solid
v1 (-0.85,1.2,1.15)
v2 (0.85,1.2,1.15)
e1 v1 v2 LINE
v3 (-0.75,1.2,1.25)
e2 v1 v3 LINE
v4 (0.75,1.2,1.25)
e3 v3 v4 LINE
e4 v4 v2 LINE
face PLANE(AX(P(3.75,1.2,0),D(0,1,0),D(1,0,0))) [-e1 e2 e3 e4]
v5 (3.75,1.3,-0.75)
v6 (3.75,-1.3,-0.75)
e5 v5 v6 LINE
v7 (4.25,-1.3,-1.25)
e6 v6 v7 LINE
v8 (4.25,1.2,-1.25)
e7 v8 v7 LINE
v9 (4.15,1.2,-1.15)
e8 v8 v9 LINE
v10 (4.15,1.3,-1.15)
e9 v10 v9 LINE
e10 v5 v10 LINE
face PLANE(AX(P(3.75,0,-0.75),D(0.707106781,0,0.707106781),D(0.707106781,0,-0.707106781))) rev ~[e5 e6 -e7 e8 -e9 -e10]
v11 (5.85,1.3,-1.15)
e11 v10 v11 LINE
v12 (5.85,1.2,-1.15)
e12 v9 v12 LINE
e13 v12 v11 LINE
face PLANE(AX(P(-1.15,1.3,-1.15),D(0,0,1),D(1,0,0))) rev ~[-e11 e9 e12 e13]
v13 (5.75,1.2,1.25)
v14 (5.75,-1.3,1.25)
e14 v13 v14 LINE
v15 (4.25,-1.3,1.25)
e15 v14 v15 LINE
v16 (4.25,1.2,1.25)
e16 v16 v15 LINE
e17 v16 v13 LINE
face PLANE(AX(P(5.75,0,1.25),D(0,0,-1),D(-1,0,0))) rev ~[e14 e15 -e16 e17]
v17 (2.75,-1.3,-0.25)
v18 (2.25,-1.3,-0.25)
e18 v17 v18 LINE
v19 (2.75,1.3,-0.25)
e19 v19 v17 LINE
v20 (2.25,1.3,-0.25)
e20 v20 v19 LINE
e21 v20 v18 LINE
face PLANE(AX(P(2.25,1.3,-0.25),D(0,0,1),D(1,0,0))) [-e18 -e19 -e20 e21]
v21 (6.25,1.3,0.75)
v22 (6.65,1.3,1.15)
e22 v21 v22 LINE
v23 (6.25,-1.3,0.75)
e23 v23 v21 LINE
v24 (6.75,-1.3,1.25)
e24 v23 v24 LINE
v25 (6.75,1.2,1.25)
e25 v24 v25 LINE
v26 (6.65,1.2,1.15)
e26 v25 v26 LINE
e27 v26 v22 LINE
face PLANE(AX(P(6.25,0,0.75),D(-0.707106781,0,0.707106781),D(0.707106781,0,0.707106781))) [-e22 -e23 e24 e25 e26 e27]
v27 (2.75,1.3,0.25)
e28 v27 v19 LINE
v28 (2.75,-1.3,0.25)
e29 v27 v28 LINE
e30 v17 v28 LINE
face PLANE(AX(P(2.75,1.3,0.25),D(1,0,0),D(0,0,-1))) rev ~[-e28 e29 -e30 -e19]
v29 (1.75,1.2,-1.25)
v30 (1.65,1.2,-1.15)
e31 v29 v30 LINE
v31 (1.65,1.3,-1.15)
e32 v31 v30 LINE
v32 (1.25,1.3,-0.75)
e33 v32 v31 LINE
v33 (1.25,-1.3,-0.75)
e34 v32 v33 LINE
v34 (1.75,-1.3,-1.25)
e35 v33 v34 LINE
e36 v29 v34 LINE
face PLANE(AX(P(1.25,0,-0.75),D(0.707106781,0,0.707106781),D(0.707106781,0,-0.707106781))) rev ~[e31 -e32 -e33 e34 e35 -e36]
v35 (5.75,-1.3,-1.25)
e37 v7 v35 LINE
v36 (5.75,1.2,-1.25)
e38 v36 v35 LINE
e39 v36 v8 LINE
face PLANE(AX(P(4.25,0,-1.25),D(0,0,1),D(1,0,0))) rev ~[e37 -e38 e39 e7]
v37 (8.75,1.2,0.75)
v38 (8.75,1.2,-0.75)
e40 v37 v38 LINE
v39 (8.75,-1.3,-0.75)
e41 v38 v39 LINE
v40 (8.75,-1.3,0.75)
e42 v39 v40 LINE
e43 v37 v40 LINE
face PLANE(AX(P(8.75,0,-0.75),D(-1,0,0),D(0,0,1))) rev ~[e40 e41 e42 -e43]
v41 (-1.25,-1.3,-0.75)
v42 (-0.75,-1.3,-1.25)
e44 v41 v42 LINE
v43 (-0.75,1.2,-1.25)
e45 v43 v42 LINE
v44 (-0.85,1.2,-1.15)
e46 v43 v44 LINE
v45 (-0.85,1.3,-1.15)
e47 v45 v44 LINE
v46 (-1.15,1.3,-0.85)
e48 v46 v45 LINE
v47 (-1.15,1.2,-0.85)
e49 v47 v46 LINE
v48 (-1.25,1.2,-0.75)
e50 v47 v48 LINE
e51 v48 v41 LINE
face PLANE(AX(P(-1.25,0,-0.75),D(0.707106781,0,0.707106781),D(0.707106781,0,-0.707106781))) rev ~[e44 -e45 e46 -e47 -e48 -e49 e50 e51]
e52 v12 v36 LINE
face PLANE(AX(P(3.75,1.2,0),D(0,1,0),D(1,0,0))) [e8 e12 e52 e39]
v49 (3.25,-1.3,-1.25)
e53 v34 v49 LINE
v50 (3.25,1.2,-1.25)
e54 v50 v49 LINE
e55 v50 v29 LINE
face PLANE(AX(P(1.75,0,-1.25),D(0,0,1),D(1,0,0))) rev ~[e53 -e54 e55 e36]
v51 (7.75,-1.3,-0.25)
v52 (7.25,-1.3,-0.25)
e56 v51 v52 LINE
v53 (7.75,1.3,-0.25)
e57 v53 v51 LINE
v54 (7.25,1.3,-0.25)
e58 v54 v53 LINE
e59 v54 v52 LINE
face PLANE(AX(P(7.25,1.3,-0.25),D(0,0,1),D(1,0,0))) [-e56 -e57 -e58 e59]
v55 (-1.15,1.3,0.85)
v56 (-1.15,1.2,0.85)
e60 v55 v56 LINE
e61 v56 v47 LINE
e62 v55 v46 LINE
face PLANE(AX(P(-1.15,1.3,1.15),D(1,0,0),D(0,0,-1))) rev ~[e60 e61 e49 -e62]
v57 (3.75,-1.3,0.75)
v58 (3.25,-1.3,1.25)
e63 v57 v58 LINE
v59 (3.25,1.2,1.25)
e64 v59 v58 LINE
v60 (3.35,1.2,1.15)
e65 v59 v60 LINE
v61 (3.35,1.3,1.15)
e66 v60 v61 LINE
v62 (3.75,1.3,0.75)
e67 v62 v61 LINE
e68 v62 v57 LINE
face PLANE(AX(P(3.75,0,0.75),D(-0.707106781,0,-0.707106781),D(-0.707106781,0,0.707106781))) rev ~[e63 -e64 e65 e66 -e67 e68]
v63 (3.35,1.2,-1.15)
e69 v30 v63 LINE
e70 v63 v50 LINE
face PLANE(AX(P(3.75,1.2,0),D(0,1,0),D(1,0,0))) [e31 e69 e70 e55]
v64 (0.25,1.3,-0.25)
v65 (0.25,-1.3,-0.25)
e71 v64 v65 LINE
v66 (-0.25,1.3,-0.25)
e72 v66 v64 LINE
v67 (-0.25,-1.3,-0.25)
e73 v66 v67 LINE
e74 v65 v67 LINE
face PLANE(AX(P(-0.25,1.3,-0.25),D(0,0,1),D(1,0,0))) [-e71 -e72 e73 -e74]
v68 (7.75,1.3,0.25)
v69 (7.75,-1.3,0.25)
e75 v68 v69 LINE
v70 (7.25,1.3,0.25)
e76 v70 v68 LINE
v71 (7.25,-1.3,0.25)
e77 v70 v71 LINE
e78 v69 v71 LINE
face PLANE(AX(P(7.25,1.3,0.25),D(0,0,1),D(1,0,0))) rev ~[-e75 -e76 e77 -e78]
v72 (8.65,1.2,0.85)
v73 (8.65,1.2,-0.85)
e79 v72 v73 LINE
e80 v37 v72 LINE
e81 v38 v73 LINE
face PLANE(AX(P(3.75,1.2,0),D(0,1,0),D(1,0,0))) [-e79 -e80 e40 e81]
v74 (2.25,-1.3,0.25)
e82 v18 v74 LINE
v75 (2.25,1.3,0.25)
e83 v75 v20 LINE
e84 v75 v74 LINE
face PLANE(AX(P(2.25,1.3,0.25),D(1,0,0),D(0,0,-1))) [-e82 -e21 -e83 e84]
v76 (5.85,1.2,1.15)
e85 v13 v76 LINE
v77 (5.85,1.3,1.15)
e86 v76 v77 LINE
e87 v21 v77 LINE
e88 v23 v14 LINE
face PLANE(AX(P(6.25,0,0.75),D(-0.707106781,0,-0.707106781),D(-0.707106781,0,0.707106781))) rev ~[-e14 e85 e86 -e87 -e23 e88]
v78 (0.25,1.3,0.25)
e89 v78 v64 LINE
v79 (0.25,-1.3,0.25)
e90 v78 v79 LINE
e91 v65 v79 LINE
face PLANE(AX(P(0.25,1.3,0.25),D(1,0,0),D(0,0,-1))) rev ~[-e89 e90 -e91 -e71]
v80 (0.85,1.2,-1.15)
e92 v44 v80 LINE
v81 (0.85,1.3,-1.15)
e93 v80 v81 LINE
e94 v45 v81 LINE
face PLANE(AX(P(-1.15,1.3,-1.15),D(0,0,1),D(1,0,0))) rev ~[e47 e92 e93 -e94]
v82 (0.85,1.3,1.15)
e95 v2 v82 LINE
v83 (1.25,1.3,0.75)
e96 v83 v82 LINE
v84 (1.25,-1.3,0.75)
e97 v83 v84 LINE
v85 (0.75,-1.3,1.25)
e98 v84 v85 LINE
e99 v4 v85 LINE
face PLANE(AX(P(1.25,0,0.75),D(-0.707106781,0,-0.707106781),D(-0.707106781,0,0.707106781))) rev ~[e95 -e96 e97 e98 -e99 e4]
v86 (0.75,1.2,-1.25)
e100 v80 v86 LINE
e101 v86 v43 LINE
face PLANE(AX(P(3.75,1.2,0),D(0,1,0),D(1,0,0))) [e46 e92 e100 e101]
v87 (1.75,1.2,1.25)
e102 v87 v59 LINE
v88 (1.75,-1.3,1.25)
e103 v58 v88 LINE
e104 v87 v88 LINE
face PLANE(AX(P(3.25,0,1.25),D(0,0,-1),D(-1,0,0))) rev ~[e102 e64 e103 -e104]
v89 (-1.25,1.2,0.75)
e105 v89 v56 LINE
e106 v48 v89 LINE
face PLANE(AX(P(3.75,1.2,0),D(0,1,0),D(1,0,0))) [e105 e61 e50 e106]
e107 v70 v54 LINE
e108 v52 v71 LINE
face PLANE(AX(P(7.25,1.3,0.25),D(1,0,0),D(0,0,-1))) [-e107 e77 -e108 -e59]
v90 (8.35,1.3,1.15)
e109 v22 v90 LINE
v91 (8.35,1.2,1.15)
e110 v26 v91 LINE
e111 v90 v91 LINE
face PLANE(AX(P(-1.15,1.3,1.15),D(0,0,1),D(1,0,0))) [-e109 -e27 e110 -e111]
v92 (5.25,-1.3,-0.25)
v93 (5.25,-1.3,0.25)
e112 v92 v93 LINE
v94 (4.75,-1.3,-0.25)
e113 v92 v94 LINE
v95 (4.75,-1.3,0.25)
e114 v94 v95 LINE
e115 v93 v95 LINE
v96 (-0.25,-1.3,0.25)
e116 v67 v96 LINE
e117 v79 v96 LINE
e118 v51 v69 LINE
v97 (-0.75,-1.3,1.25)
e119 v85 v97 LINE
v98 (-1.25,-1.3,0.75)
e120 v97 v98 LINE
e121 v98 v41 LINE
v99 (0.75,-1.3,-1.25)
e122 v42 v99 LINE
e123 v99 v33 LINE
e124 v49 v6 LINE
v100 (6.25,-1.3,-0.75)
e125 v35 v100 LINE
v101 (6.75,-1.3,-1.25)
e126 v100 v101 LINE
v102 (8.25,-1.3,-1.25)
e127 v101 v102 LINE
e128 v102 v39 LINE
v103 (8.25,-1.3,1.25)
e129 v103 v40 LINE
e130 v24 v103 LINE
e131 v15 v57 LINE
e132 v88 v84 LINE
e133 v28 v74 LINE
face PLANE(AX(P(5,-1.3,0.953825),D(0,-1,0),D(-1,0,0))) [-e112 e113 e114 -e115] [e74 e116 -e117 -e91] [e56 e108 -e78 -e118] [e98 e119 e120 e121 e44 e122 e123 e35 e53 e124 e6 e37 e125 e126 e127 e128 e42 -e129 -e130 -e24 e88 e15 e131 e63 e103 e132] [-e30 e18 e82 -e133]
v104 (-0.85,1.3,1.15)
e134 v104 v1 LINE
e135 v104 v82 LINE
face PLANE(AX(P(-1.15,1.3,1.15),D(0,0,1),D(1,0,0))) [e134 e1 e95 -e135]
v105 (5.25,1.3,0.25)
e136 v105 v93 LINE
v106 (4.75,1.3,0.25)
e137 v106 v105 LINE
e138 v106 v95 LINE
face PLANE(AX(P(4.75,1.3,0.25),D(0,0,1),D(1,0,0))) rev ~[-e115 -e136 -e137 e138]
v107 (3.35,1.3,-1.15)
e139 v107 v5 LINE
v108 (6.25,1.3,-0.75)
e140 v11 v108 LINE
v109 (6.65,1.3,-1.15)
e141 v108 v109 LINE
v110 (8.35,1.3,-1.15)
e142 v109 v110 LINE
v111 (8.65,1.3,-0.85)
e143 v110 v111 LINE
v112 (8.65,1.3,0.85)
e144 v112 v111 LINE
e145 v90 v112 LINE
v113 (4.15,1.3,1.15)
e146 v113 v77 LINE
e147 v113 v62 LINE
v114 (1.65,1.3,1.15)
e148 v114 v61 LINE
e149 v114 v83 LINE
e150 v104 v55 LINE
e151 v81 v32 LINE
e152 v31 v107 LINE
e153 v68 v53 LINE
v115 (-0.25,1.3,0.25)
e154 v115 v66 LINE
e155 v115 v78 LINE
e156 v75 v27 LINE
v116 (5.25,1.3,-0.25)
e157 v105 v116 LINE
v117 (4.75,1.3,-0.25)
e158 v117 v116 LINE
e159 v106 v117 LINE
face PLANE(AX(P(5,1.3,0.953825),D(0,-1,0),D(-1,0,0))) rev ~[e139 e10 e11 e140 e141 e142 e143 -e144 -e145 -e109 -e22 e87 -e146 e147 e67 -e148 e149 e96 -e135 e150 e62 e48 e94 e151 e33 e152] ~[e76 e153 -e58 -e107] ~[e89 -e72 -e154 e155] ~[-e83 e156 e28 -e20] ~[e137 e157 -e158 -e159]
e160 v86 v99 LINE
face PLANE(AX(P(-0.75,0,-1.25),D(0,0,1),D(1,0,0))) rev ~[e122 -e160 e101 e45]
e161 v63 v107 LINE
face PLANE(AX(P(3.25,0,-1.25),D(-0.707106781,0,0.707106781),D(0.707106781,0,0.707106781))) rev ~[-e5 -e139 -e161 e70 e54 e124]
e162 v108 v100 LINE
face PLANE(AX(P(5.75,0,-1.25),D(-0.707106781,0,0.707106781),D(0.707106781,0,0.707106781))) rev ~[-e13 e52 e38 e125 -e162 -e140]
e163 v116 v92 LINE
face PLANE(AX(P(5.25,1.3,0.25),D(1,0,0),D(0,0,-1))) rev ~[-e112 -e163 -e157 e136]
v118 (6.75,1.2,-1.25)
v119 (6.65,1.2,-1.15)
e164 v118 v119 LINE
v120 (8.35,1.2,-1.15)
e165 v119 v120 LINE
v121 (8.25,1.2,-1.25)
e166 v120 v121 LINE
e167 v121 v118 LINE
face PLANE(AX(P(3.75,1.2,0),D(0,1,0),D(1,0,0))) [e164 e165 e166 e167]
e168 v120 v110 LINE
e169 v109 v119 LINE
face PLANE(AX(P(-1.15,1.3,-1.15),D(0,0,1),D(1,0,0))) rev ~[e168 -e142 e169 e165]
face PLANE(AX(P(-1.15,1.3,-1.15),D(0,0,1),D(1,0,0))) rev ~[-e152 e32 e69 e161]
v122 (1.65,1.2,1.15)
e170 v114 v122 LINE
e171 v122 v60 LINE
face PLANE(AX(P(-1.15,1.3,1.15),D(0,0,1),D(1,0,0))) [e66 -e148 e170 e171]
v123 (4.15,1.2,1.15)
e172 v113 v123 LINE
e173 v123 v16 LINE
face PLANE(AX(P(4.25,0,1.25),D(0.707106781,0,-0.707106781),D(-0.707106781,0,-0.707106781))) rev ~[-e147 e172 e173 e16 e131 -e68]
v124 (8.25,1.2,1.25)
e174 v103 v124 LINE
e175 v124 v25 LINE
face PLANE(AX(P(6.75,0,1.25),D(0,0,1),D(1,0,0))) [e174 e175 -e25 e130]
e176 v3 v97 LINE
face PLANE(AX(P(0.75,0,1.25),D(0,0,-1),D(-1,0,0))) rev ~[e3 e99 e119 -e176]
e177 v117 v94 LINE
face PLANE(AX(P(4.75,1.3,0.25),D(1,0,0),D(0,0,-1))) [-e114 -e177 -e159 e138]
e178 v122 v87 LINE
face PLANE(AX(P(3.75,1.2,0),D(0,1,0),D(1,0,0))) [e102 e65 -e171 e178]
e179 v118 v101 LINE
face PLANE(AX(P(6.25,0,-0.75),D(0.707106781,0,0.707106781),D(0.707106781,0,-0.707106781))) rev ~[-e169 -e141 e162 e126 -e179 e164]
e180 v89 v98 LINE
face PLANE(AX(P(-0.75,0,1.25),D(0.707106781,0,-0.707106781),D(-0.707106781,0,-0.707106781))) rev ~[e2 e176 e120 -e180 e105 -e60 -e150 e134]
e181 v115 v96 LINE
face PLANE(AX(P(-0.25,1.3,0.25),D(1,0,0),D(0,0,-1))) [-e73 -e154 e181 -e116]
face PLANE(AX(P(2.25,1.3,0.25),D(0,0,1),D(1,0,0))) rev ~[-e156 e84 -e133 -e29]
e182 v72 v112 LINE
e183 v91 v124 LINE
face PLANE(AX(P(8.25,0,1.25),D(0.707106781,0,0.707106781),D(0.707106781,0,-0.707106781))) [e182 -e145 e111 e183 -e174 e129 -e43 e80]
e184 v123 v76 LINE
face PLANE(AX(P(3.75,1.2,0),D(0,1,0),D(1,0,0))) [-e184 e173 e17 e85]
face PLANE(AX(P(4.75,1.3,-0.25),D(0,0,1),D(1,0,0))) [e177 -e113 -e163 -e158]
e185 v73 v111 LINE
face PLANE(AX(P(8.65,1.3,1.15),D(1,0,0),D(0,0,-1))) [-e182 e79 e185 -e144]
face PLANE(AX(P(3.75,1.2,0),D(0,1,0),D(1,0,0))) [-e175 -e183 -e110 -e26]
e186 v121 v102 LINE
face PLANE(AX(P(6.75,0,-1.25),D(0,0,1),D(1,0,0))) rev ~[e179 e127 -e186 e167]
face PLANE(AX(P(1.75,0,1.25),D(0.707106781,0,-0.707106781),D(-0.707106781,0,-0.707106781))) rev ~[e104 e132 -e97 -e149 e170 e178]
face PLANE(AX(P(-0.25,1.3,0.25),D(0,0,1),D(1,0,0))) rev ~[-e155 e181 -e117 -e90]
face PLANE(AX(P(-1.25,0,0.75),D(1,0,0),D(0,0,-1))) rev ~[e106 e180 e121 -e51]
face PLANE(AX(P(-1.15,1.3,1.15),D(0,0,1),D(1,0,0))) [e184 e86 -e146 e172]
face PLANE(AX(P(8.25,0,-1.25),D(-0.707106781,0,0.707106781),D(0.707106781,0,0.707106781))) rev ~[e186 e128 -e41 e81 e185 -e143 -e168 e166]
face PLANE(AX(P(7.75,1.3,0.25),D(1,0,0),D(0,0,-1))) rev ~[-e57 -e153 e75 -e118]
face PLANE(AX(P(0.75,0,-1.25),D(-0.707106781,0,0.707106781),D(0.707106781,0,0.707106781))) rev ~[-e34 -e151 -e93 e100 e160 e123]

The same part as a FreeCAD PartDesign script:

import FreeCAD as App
import Part
import Sketcher
Q = App.Units.Quantity


def add_polygon(sketch, points):
    """Adds a closed chain of lines whose ends are joined by coincident constraints."""
    first, n = sketch.GeometryCount, len(points)
    for a, b in zip(points, points[1:] + points[:1]):
        sketch.addGeometry(Part.LineSegment(App.Vector(*a, 0), App.Vector(*b, 0)), False)
    for i in range(n):
        sketch.addConstraint(Sketcher.Constraint("Coincident", first + i, 2, first + (i + 1) % n, 1))

doc = App.newDocument("Part")
params = doc.addObject("Spreadsheet::Sheet", "Params")
for row, (alias, value) in enumerate([
    ("sketch1_width", "1.5 mm"),
    ("pad1_length", "2.6 mm"),
    ("sketch2_width", "9.8 mm"),
    ("sketch2_height", "2.3 mm"),
    ("pocket1_length", "0.1 mm"),
    ("sketch3_width", "0.5 mm"),
], start=1):
    params.set(f"A{row}", alias)
    params.set(f"B{row}", "=" + value)
    params.setAlias(f"B{row}", alias)

body = doc.addObject("PartDesign::Body", "Body")

sketch1 = body.newObject("Sketcher::SketchObject", "Sketch")
sketch1.AttachmentSupport = (doc.getObject("XZ_Plane"), [""])
sketch1.MapMode = "FlatFace"
add_polygon(sketch1, [(5.75, 1.25), (6.25, 0.75), (6.75, 1.25), (8.25, 1.25), (8.75, 0.75), (8.75, -0.75), (8.25, -1.25), (6.75, -1.25), (6.25, -0.75), (5.75, -1.25), (4.25, -1.25), (3.75, -0.75), (3.25, -1.25), (1.75, -1.25), (1.25, -0.75), (0.75, -1.25), (-0.75, -1.25), (-1.25, -0.75), (-1.25, 0.75), (-0.75, 1.25), (0.75, 1.25), (1.25, 0.75), (1.75, 1.25), (3.25, 1.25), (3.75, 0.75), (4.25, 1.25)])
sketch1.addConstraint(Sketcher.Constraint("Horizontal", 2))
sketch1.addConstraint(Sketcher.Constraint("Vertical", 4))
sketch1.addConstraint(Sketcher.Constraint("Horizontal", 6))
sketch1.addConstraint(Sketcher.Constraint("Horizontal", 9))
sketch1.addConstraint(Sketcher.Constraint("Horizontal", 12))
sketch1.addConstraint(Sketcher.Constraint("Horizontal", 15))
sketch1.addConstraint(Sketcher.Constraint("Vertical", 17))
sketch1.addConstraint(Sketcher.Constraint("Horizontal", 19))
sketch1.addConstraint(Sketcher.Constraint("Horizontal", 22))
sketch1.addConstraint(Sketcher.Constraint("Horizontal", 25))
sketch1.addConstraint(Sketcher.Constraint("Symmetric", 13, 2, 17, 2, -1, 1))
sketch1.addConstraint(Sketcher.Constraint("Symmetric", 14, 2, 18, 2, -1, 1))
sketch1.addConstraint(Sketcher.Constraint("Symmetric", 16, 2, 20, 2, -1, 1))
sketch1.addConstraint(Sketcher.Constraint("Symmetric", 2, 2, 5, 2, -1))
sketch1.addConstraint(Sketcher.Constraint("Symmetric", 0, 2, 7, 2, -1))
sketch1.addConstraint(Sketcher.Constraint("Symmetric", 12, 2, 21, 2, -1))
sketch1.addConstraint(Sketcher.Constraint("Symmetric", 10, 2, 23, 2, -1))
sketch1.addConstraint(Sketcher.Constraint("Symmetric", 9, 2, 24, 2, -1))
sketch1.addConstraint(Sketcher.Constraint("Perpendicular", 0, 1))
sketch1.addConstraint(Sketcher.Constraint("Perpendicular", 1, 3))
sketch1.addConstraint(Sketcher.Constraint("Perpendicular", 3, 5))
sketch1.addConstraint(Sketcher.Constraint("Perpendicular", 5, 7))
sketch1.addConstraint(Sketcher.Constraint("Perpendicular", 7, 8))
sketch1.addConstraint(Sketcher.Constraint("Perpendicular", 8, 10))
sketch1.addConstraint(Sketcher.Constraint("Perpendicular", 10, 11))
sketch1.addConstraint(Sketcher.Constraint("Perpendicular", 11, 13))
sketch1.addConstraint(Sketcher.Constraint("Perpendicular", 13, 14))
sketch1.addConstraint(Sketcher.Constraint("Perpendicular", 14, 16))
sketch1.addConstraint(Sketcher.Constraint("Perpendicular", 18, 20))
sketch1.addConstraint(Sketcher.Constraint("Perpendicular", 20, 21))
sketch1.addConstraint(Sketcher.Constraint("Perpendicular", 21, 23))
sketch1.addConstraint(Sketcher.Constraint("Perpendicular", 23, 24))
sketch1.addConstraint(Sketcher.Constraint("Horizontal", 0, 2, 3, 2))
sketch1.addConstraint(Sketcher.Constraint("Horizontal", 6, 2, 8, 2))
sketch1.addConstraint(Sketcher.Constraint("Horizontal", 7, 2, 10, 2))
sketch1.addConstraint(Sketcher.Constraint("Horizontal", 9, 2, 11, 2))
sketch1.addConstraint(Sketcher.Constraint("Horizontal", 10, 2, 13, 2))
sketch1.addConstraint(Sketcher.Constraint("Horizontal", 12, 2, 14, 2))
sketch1.addConstraint(Sketcher.Constraint("Equal", 6, 9))
sketch1.addConstraint(Sketcher.Constraint("Equal", 9, 12))
sketch1.addConstraint(Sketcher.Constraint("Equal", 12, 15))
sketch1.addConstraint(Sketcher.Constraint("Equal", 25, 4))
sketch1.addConstraint(Sketcher.Constraint("DistanceX", 2, 1, 2, 2, Q("1.5 mm")))
sketch1.addConstraint(Sketcher.Constraint("DistanceX", 0, 2, 2, 2, Q("2 mm")))
sketch1.setExpression("Constraints[68]", "Params.sketch1_width")
pad1 = body.newObject("PartDesign::Pad", "Pad")
pad1.Profile = sketch1
pad1.setExpression("Length", "Params.pad1_length")
pad1.Midplane = True

sketch2 = body.newObject("Sketcher::SketchObject", "Sketch001")
sketch2.AttachmentSupport = (doc.getObject("XZ_Plane"), [""])
sketch2.MapMode = "FlatFace"
sketch2.AttachmentOffset = App.Placement(App.Vector(0, 0, -1.3), App.Rotation())
add_polygon(sketch2, [(-2.048562, -2.084704), (-2.048562, 2.084704), (9.548562, 2.084704), (9.548562, -2.084704)])
add_polygon(sketch2, [(8.65, 1.15), (-1.15, 1.15), (-1.15, -1.15), (8.65, -1.15)])
sketch2.addConstraint(Sketcher.Constraint("Vertical", 0))
sketch2.addConstraint(Sketcher.Constraint("Horizontal", 1))
sketch2.addConstraint(Sketcher.Constraint("Vertical", 2))
sketch2.addConstraint(Sketcher.Constraint("Horizontal", 3))
sketch2.addConstraint(Sketcher.Constraint("Horizontal", 4))
sketch2.addConstraint(Sketcher.Constraint("Vertical", 5))
sketch2.addConstraint(Sketcher.Constraint("Horizontal", 6))
sketch2.addConstraint(Sketcher.Constraint("Vertical", 7))
sketch2.addConstraint(Sketcher.Constraint("DistanceX", 4, 2, 4, 1, Q("9.8 mm")))
sketch2.addConstraint(Sketcher.Constraint("DistanceY", 5, 2, 5, 1, Q("2.3 mm")))
sketch2.addConstraint(Sketcher.Constraint("DistanceX", 4, 2, -1, 1, Q("1.15 mm")))
sketch2.addConstraint(Sketcher.Constraint("DistanceY", -1, 1, 4, 2, Q("1.15 mm")))
sketch2.addConstraint(Sketcher.Constraint("DistanceY", 0, 1, 0, 2, Q("4.169409 mm")))
sketch2.addConstraint(Sketcher.Constraint("DistanceX", 1, 1, 1, 2, Q("11.597123 mm")))
sketch2.addConstraint(Sketcher.Constraint("DistanceX", 0, 2, -1, 1, Q("2.048562 mm")))
sketch2.addConstraint(Sketcher.Constraint("DistanceY", -1, 1, 0, 2, Q("2.084704 mm")))
sketch2.setExpression("Constraints[16]", "Params.sketch2_width")
sketch2.setExpression("Constraints[17]", "Params.sketch2_height")
pocket1 = body.newObject("PartDesign::Pocket", "Pocket")
pocket1.Profile = sketch2
pocket1.setExpression("Length", "Params.pocket1_length")
pocket1.Reversed = True

sketch3 = body.newObject("Sketcher::SketchObject", "Sketch002")
sketch3.AttachmentSupport = (doc.getObject("XZ_Plane"), [""])
sketch3.MapMode = "FlatFace"
sketch3.AttachmentOffset = App.Placement(App.Vector(0, 0, -1.3), App.Rotation())
add_polygon(sketch3, [(2.25, -0.25), (2.25, 0.25), (2.75, 0.25), (2.75, -0.25)])
add_polygon(sketch3, [(-0.25, -0.25), (-0.25, 0.25), (0.25, 0.25), (0.25, -0.25)])
add_polygon(sketch3, [(4.75, -0.25), (4.75, 0.25), (5.25, 0.25), (5.25, -0.25)])
add_polygon(sketch3, [(7.25, -0.25), (7.25, 0.25), (7.75, 0.25), (7.75, -0.25)])
sketch3.addConstraint(Sketcher.Constraint("Vertical", 0))
sketch3.addConstraint(Sketcher.Constraint("Horizontal", 1))
sketch3.addConstraint(Sketcher.Constraint("Vertical", 2))
sketch3.addConstraint(Sketcher.Constraint("Horizontal", 3))
sketch3.addConstraint(Sketcher.Constraint("Vertical", 4))
sketch3.addConstraint(Sketcher.Constraint("Horizontal", 5))
sketch3.addConstraint(Sketcher.Constraint("Vertical", 6))
sketch3.addConstraint(Sketcher.Constraint("Horizontal", 7))
sketch3.addConstraint(Sketcher.Constraint("Vertical", 8))
sketch3.addConstraint(Sketcher.Constraint("Horizontal", 9))
sketch3.addConstraint(Sketcher.Constraint("Vertical", 10))
sketch3.addConstraint(Sketcher.Constraint("Horizontal", 11))
sketch3.addConstraint(Sketcher.Constraint("Vertical", 12))
sketch3.addConstraint(Sketcher.Constraint("Horizontal", 13))
sketch3.addConstraint(Sketcher.Constraint("Vertical", 14))
sketch3.addConstraint(Sketcher.Constraint("Horizontal", 15))
sketch3.addConstraint(Sketcher.Constraint("Symmetric", 4, 2, 6, 2, -1, 1))
sketch3.addConstraint(Sketcher.Constraint("Horizontal", 1, 2, 4, 2))
sketch3.addConstraint(Sketcher.Constraint("Horizontal", 3, 2, 6, 2))
sketch3.addConstraint(Sketcher.Constraint("Horizontal", 5, 2, 8, 2))
sketch3.addConstraint(Sketcher.Constraint("Horizontal", 7, 2, 10, 2))
sketch3.addConstraint(Sketcher.Constraint("Horizontal", 9, 2, 12, 2))
sketch3.addConstraint(Sketcher.Constraint("Horizontal", 11, 2, 14, 2))
sketch3.addConstraint(Sketcher.Constraint("Equal", 3, 5))
sketch3.addConstraint(Sketcher.Constraint("Equal", 7, 9))
sketch3.addConstraint(Sketcher.Constraint("Equal", 11, 13))
sketch3.addConstraint(Sketcher.Constraint("Equal", 15, 0))
sketch3.addConstraint(Sketcher.Constraint("DistanceX", 1, 1, 1, 2, Q("0.5 mm")))
sketch3.addConstraint(Sketcher.Constraint("DistanceX", 4, 2, 1, 2, Q("3 mm")))
sketch3.addConstraint(Sketcher.Constraint("DistanceX", 1, 2, 8, 2, Q("2 mm")))
sketch3.addConstraint(Sketcher.Constraint("DistanceX", 9, 2, 12, 2, Q("2 mm")))
sketch3.setExpression("Constraints[43]", "Params.sketch3_width")
pocket2 = body.newObject("PartDesign::Pocket", "Pocket001")
pocket2.Profile = sketch3
pocket2.Type = "ThroughAll"
pocket2.Reversed = True

doc.recompute()
